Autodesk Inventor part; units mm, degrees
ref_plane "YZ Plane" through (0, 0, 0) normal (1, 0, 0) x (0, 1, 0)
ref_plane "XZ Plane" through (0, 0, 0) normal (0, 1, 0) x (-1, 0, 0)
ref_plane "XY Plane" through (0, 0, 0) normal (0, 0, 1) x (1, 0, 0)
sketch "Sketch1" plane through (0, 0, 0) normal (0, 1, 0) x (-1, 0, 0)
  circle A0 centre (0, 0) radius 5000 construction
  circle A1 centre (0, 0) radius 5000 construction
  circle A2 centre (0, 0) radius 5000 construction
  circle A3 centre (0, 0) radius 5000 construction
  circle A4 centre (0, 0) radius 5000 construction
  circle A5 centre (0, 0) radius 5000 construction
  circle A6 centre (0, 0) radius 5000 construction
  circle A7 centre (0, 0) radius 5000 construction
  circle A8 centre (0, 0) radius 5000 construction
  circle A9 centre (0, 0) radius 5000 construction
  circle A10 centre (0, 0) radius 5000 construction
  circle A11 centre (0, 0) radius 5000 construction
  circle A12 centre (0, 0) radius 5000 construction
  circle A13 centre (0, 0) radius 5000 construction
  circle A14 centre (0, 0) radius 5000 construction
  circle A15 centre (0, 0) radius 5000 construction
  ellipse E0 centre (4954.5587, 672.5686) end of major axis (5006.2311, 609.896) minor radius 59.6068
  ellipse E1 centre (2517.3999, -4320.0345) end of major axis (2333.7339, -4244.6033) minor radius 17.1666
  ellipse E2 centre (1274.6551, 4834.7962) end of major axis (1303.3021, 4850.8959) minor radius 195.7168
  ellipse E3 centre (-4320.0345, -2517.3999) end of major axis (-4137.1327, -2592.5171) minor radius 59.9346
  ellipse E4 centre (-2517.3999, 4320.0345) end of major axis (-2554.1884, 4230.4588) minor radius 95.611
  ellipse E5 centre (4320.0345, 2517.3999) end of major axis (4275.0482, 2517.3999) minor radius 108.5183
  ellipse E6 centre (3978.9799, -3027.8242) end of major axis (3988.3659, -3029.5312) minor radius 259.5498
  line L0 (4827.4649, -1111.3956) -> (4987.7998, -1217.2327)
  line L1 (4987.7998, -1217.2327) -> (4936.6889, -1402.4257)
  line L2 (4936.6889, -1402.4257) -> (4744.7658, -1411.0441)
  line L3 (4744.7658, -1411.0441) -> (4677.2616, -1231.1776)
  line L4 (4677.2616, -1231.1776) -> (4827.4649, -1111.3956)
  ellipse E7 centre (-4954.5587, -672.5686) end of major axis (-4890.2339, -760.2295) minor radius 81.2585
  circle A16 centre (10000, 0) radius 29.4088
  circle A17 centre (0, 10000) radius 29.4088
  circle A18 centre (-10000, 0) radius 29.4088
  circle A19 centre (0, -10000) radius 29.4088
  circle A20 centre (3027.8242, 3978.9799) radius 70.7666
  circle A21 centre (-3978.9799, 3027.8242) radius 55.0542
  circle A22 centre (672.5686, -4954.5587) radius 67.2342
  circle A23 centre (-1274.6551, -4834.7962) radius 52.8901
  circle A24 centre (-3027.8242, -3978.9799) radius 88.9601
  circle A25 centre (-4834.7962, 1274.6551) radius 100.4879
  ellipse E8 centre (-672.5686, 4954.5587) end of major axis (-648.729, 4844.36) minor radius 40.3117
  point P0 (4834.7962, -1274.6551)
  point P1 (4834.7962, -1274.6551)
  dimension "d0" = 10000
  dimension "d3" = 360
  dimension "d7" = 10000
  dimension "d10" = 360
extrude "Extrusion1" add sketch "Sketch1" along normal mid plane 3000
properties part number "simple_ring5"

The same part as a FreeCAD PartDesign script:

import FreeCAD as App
import Part
import Sketcher
from FreeCAD import Vector
Q = App.Units.Quantity


def add_polygon(sketch, points):
    """Adds a closed chain of lines whose ends are joined by coincident constraints."""
    first, n = sketch.GeometryCount, len(points)
    for a, b in zip(points, points[1:] + points[:1]):
        sketch.addGeometry(Part.LineSegment(App.Vector(*a, 0), App.Vector(*b, 0)), False)
    for i in range(n):
        sketch.addConstraint(Sketcher.Constraint("Coincident", first + i, 2, first + (i + 1) % n, 1))

doc = App.newDocument("Part")
body = doc.addObject("PartDesign::Body", "Body")
body.AllowCompound = True

# Sketch on XZ plane
sketch1 = body.newObject("Sketcher::SketchObject", "Sketch")
sketch1.AttachmentSupport = (doc.getObject("XZ_Plane"), [""])
sketch1.MapMode = "FlatFace"
sketch1.addGeometry(Part.Ellipse(Vector(-5006.2311, 609.896, 0), Vector(-4908.567904, 634.650039, 0), Vector(-4954.5587, 672.5686, 0)), False)  # 0
sketch1.addGeometry(Part.Ellipse(Vector(-2333.7339, -4244.6033, 0), Vector(-2523.921589, -4304.154962, 0), Vector(-2517.3999, -4320.0345, 0)), False)  # 1
sketch1.addGeometry(Part.Ellipse(Vector(-1178.767161, 5005.414397, 0), Vector(-1303.3021, 4850.8959, 0), Vector(-1274.6551, 4834.7962, 0)), False)  # 2
sketch1.addGeometry(Part.Ellipse(Vector(4137.1327, -2592.5171, 0), Vector(4342.803959, -2572.840932, 0), Vector(4320.0345, -2517.3999, 0)), False)  # 3
sketch1.addGeometry(Part.Ellipse(Vector(2554.1884, 4230.4588, 0), Vector(2605.842497, 4356.357638, 0), Vector(2517.3999, 4320.0345, 0)), False)  # 4
sketch1.addGeometry(Part.Ellipse(Vector(-4320.0345, 2408.8816, 0), Vector(-4275.0482, 2517.3999, 0), Vector(-4320.0345, 2517.3999, 0)), False)  # 5
sketch1.addGeometry(Part.Ellipse(Vector(-4025.421551, -2772.463138, 0), Vector(-3988.3659, -3029.5312, 0), Vector(-3978.9799, -3027.8242, 0)), False)  # 6
add_polygon(sketch1, [(-4987.7998, -1217.2327), (-4827.4649, -1111.3956), (-4677.2616, -1231.1776), (-4744.7658, -1411.0441), (-4936.6889, -1402.4257)])  # lines 7-11
sketch1.addGeometry(Part.Ellipse(Vector(4890.2339, -760.2295, 0), Vector(5020.071652, -720.64143, 0), Vector(4954.5587, -672.5686, 0)), False)  # 12
sketch1.addGeometry(Part.Circle(Vector(-10000, 0, 0), Vector(0, 0, 1), 29.4088), False)  # 13
sketch1.addGeometry(Part.Circle(Vector(0, 10000, 0), Vector(0, 0, 1), 29.4088), False)  # 14
sketch1.addGeometry(Part.Circle(Vector(10000, 0, 0), Vector(0, 0, 1), 29.4088), False)  # 15
sketch1.addGeometry(Part.Circle(Vector(0, -10000, 0), Vector(0, 0, 1), 29.4088), False)  # 16
sketch1.addGeometry(Part.Circle(Vector(-3027.8242, 3978.9799, 0), Vector(0, 0, 1), 70.7666), False)  # 17
sketch1.addGeometry(Part.Circle(Vector(3978.9799, 3027.8242, 0), Vector(0, 0, 1), 55.0542), False)  # 18
sketch1.addGeometry(Part.Circle(Vector(-672.5686, -4954.5587, 0), Vector(0, 0, 1), 67.2342), False)  # 19
sketch1.addGeometry(Part.Circle(Vector(1274.6551, -4834.7962, 0), Vector(0, 0, 1), 52.8901), False)  # 20
sketch1.addGeometry(Part.Circle(Vector(3027.8242, -3978.9799, 0), Vector(0, 0, 1), 88.9601), False)  # 21
sketch1.addGeometry(Part.Circle(Vector(4834.7962, 1274.6551, 0), Vector(0, 0, 1), 100.4879), False)  # 22
sketch1.addGeometry(Part.Ellipse(Vector(648.729, 4844.36, 0), Vector(711.968877, 4946.035125, 0), Vector(672.5686, 4954.5587, 0)), False)  # 23
sketch1.addConstraint(Sketcher.Constraint("Block", 0))
sketch1.addConstraint(Sketcher.Constraint("Block", 1))
sketch1.addConstraint(Sketcher.Constraint("Block", 2))
sketch1.addConstraint(Sketcher.Constraint("Block", 3))
sketch1.addConstraint(Sketcher.Constraint("Block", 4))
sketch1.addConstraint(Sketcher.Constraint("Block", 5))
sketch1.addConstraint(Sketcher.Constraint("Block", 6))
sketch1.addConstraint(Sketcher.Constraint("Block", 12))
sketch1.addConstraint(Sketcher.Constraint("Block", 23))
sketch1.addConstraint(Sketcher.Constraint("Equal", 13, 14))
sketch1.addConstraint(Sketcher.Constraint("Equal", 14, 15))
sketch1.addConstraint(Sketcher.Constraint("Equal", 15, 16))
sketch1.addConstraint(Sketcher.Constraint("Symmetric", 13, 3, 15, 3, -1, 1))
sketch1.addConstraint(Sketcher.Constraint("Symmetric", 14, 3, 16, 3, -1, 1))
sketch1.addConstraint(Sketcher.Constraint("Symmetric", 17, 3, 21, 3, -1, 1))
sketch1.addConstraint(Sketcher.Constraint("PointOnObject", 13, 3, -1))
sketch1.addConstraint(Sketcher.Constraint("PointOnObject", 14, 3, -2))
sketch1.addConstraint(Sketcher.Constraint("Equal", 7, 8))
sketch1.addConstraint(Sketcher.Constraint("Equal", 8, 9))
sketch1.addConstraint(Sketcher.Constraint("Equal", 9, 10))
sketch1.addConstraint(Sketcher.Constraint("Equal", 10, 11))
sketch1.addConstraint(Sketcher.Constraint("DistanceX", 13, 3, -1, 1, 10000.0))
sketch1.addConstraint(Sketcher.Constraint("DistanceY", -1, 1, 14, 3, 10000.0))
sketch1.addConstraint(Sketcher.Constraint("Diameter", 13, 58.8176))
sketch1.addConstraint(Sketcher.Constraint("Diameter", 17, 141.5332))
sketch1.addConstraint(Sketcher.Constraint("Diameter", 18, 110.1084))
sketch1.addConstraint(Sketcher.Constraint("Diameter", 19, 134.4684))
sketch1.addConstraint(Sketcher.Constraint("Diameter", 20, 105.7802))
sketch1.addConstraint(Sketcher.Constraint("Diameter", 21, 177.9202))
sketch1.addConstraint(Sketcher.Constraint("Diameter", 22, 200.9758))
sketch1.addConstraint(Sketcher.Constraint("Angle", 7, Q("33.4288 deg")))
sketch1.addConstraint(Sketcher.Constraint("Angle", 8, Q("-38.5712 deg")))
sketch1.addConstraint(Sketcher.Constraint("Angle", 9, Q("-110.5712 deg")))
sketch1.addConstraint(Sketcher.Constraint("DistanceY", -1, 1, 17, 3, 3978.98))
sketch1.addConstraint(Sketcher.Constraint("DistanceX", -1, 1, 18, 3, 3978.98))
sketch1.addConstraint(Sketcher.Constraint("DistanceX", 7, 2, 20, 3, 6102.12))
sketch1.addConstraint(Sketcher.Constraint("DistanceY", 10, 2, 7, 2, 291.03))
sketch1.addConstraint(Sketcher.Constraint("DistanceX", -1, 1, 20, 3, 1274.655))
sketch1.addConstraint(Sketcher.Constraint("DistanceY", -1, 1, 22, 3, 1274.655))
sketch1.addConstraint(Sketcher.Constraint("DistanceY", 9, 2, -1, 1, 1411.044))
sketch1.addConstraint(Sketcher.Constraint("DistanceX", 17, 3, 18, 3, 7006.804))
sketch1.addConstraint(Sketcher.Constraint("DistanceY", 19, 3, 18, 3, 7982.383))
sketch1.addConstraint(Sketcher.Constraint("DistanceY", 20, 3, 17, 3, 8813.776))
sketch1.addConstraint(Sketcher.Constraint("DistanceY", 21, 3, 18, 3, 7006.804))
sketch1.addConstraint(Sketcher.Constraint("DistanceX", 21, 3, 22, 3, 1806.972))
sketch1.addConstraint(Sketcher.Constraint("DistanceX", 8, 2, 19, 3, 4004.693))
pad1 = body.newObject("PartDesign::Pad", "Pad")
pad1.Profile = sketch1
pad1.Length = 3000
pad1.Midplane = True

doc.recompute()
